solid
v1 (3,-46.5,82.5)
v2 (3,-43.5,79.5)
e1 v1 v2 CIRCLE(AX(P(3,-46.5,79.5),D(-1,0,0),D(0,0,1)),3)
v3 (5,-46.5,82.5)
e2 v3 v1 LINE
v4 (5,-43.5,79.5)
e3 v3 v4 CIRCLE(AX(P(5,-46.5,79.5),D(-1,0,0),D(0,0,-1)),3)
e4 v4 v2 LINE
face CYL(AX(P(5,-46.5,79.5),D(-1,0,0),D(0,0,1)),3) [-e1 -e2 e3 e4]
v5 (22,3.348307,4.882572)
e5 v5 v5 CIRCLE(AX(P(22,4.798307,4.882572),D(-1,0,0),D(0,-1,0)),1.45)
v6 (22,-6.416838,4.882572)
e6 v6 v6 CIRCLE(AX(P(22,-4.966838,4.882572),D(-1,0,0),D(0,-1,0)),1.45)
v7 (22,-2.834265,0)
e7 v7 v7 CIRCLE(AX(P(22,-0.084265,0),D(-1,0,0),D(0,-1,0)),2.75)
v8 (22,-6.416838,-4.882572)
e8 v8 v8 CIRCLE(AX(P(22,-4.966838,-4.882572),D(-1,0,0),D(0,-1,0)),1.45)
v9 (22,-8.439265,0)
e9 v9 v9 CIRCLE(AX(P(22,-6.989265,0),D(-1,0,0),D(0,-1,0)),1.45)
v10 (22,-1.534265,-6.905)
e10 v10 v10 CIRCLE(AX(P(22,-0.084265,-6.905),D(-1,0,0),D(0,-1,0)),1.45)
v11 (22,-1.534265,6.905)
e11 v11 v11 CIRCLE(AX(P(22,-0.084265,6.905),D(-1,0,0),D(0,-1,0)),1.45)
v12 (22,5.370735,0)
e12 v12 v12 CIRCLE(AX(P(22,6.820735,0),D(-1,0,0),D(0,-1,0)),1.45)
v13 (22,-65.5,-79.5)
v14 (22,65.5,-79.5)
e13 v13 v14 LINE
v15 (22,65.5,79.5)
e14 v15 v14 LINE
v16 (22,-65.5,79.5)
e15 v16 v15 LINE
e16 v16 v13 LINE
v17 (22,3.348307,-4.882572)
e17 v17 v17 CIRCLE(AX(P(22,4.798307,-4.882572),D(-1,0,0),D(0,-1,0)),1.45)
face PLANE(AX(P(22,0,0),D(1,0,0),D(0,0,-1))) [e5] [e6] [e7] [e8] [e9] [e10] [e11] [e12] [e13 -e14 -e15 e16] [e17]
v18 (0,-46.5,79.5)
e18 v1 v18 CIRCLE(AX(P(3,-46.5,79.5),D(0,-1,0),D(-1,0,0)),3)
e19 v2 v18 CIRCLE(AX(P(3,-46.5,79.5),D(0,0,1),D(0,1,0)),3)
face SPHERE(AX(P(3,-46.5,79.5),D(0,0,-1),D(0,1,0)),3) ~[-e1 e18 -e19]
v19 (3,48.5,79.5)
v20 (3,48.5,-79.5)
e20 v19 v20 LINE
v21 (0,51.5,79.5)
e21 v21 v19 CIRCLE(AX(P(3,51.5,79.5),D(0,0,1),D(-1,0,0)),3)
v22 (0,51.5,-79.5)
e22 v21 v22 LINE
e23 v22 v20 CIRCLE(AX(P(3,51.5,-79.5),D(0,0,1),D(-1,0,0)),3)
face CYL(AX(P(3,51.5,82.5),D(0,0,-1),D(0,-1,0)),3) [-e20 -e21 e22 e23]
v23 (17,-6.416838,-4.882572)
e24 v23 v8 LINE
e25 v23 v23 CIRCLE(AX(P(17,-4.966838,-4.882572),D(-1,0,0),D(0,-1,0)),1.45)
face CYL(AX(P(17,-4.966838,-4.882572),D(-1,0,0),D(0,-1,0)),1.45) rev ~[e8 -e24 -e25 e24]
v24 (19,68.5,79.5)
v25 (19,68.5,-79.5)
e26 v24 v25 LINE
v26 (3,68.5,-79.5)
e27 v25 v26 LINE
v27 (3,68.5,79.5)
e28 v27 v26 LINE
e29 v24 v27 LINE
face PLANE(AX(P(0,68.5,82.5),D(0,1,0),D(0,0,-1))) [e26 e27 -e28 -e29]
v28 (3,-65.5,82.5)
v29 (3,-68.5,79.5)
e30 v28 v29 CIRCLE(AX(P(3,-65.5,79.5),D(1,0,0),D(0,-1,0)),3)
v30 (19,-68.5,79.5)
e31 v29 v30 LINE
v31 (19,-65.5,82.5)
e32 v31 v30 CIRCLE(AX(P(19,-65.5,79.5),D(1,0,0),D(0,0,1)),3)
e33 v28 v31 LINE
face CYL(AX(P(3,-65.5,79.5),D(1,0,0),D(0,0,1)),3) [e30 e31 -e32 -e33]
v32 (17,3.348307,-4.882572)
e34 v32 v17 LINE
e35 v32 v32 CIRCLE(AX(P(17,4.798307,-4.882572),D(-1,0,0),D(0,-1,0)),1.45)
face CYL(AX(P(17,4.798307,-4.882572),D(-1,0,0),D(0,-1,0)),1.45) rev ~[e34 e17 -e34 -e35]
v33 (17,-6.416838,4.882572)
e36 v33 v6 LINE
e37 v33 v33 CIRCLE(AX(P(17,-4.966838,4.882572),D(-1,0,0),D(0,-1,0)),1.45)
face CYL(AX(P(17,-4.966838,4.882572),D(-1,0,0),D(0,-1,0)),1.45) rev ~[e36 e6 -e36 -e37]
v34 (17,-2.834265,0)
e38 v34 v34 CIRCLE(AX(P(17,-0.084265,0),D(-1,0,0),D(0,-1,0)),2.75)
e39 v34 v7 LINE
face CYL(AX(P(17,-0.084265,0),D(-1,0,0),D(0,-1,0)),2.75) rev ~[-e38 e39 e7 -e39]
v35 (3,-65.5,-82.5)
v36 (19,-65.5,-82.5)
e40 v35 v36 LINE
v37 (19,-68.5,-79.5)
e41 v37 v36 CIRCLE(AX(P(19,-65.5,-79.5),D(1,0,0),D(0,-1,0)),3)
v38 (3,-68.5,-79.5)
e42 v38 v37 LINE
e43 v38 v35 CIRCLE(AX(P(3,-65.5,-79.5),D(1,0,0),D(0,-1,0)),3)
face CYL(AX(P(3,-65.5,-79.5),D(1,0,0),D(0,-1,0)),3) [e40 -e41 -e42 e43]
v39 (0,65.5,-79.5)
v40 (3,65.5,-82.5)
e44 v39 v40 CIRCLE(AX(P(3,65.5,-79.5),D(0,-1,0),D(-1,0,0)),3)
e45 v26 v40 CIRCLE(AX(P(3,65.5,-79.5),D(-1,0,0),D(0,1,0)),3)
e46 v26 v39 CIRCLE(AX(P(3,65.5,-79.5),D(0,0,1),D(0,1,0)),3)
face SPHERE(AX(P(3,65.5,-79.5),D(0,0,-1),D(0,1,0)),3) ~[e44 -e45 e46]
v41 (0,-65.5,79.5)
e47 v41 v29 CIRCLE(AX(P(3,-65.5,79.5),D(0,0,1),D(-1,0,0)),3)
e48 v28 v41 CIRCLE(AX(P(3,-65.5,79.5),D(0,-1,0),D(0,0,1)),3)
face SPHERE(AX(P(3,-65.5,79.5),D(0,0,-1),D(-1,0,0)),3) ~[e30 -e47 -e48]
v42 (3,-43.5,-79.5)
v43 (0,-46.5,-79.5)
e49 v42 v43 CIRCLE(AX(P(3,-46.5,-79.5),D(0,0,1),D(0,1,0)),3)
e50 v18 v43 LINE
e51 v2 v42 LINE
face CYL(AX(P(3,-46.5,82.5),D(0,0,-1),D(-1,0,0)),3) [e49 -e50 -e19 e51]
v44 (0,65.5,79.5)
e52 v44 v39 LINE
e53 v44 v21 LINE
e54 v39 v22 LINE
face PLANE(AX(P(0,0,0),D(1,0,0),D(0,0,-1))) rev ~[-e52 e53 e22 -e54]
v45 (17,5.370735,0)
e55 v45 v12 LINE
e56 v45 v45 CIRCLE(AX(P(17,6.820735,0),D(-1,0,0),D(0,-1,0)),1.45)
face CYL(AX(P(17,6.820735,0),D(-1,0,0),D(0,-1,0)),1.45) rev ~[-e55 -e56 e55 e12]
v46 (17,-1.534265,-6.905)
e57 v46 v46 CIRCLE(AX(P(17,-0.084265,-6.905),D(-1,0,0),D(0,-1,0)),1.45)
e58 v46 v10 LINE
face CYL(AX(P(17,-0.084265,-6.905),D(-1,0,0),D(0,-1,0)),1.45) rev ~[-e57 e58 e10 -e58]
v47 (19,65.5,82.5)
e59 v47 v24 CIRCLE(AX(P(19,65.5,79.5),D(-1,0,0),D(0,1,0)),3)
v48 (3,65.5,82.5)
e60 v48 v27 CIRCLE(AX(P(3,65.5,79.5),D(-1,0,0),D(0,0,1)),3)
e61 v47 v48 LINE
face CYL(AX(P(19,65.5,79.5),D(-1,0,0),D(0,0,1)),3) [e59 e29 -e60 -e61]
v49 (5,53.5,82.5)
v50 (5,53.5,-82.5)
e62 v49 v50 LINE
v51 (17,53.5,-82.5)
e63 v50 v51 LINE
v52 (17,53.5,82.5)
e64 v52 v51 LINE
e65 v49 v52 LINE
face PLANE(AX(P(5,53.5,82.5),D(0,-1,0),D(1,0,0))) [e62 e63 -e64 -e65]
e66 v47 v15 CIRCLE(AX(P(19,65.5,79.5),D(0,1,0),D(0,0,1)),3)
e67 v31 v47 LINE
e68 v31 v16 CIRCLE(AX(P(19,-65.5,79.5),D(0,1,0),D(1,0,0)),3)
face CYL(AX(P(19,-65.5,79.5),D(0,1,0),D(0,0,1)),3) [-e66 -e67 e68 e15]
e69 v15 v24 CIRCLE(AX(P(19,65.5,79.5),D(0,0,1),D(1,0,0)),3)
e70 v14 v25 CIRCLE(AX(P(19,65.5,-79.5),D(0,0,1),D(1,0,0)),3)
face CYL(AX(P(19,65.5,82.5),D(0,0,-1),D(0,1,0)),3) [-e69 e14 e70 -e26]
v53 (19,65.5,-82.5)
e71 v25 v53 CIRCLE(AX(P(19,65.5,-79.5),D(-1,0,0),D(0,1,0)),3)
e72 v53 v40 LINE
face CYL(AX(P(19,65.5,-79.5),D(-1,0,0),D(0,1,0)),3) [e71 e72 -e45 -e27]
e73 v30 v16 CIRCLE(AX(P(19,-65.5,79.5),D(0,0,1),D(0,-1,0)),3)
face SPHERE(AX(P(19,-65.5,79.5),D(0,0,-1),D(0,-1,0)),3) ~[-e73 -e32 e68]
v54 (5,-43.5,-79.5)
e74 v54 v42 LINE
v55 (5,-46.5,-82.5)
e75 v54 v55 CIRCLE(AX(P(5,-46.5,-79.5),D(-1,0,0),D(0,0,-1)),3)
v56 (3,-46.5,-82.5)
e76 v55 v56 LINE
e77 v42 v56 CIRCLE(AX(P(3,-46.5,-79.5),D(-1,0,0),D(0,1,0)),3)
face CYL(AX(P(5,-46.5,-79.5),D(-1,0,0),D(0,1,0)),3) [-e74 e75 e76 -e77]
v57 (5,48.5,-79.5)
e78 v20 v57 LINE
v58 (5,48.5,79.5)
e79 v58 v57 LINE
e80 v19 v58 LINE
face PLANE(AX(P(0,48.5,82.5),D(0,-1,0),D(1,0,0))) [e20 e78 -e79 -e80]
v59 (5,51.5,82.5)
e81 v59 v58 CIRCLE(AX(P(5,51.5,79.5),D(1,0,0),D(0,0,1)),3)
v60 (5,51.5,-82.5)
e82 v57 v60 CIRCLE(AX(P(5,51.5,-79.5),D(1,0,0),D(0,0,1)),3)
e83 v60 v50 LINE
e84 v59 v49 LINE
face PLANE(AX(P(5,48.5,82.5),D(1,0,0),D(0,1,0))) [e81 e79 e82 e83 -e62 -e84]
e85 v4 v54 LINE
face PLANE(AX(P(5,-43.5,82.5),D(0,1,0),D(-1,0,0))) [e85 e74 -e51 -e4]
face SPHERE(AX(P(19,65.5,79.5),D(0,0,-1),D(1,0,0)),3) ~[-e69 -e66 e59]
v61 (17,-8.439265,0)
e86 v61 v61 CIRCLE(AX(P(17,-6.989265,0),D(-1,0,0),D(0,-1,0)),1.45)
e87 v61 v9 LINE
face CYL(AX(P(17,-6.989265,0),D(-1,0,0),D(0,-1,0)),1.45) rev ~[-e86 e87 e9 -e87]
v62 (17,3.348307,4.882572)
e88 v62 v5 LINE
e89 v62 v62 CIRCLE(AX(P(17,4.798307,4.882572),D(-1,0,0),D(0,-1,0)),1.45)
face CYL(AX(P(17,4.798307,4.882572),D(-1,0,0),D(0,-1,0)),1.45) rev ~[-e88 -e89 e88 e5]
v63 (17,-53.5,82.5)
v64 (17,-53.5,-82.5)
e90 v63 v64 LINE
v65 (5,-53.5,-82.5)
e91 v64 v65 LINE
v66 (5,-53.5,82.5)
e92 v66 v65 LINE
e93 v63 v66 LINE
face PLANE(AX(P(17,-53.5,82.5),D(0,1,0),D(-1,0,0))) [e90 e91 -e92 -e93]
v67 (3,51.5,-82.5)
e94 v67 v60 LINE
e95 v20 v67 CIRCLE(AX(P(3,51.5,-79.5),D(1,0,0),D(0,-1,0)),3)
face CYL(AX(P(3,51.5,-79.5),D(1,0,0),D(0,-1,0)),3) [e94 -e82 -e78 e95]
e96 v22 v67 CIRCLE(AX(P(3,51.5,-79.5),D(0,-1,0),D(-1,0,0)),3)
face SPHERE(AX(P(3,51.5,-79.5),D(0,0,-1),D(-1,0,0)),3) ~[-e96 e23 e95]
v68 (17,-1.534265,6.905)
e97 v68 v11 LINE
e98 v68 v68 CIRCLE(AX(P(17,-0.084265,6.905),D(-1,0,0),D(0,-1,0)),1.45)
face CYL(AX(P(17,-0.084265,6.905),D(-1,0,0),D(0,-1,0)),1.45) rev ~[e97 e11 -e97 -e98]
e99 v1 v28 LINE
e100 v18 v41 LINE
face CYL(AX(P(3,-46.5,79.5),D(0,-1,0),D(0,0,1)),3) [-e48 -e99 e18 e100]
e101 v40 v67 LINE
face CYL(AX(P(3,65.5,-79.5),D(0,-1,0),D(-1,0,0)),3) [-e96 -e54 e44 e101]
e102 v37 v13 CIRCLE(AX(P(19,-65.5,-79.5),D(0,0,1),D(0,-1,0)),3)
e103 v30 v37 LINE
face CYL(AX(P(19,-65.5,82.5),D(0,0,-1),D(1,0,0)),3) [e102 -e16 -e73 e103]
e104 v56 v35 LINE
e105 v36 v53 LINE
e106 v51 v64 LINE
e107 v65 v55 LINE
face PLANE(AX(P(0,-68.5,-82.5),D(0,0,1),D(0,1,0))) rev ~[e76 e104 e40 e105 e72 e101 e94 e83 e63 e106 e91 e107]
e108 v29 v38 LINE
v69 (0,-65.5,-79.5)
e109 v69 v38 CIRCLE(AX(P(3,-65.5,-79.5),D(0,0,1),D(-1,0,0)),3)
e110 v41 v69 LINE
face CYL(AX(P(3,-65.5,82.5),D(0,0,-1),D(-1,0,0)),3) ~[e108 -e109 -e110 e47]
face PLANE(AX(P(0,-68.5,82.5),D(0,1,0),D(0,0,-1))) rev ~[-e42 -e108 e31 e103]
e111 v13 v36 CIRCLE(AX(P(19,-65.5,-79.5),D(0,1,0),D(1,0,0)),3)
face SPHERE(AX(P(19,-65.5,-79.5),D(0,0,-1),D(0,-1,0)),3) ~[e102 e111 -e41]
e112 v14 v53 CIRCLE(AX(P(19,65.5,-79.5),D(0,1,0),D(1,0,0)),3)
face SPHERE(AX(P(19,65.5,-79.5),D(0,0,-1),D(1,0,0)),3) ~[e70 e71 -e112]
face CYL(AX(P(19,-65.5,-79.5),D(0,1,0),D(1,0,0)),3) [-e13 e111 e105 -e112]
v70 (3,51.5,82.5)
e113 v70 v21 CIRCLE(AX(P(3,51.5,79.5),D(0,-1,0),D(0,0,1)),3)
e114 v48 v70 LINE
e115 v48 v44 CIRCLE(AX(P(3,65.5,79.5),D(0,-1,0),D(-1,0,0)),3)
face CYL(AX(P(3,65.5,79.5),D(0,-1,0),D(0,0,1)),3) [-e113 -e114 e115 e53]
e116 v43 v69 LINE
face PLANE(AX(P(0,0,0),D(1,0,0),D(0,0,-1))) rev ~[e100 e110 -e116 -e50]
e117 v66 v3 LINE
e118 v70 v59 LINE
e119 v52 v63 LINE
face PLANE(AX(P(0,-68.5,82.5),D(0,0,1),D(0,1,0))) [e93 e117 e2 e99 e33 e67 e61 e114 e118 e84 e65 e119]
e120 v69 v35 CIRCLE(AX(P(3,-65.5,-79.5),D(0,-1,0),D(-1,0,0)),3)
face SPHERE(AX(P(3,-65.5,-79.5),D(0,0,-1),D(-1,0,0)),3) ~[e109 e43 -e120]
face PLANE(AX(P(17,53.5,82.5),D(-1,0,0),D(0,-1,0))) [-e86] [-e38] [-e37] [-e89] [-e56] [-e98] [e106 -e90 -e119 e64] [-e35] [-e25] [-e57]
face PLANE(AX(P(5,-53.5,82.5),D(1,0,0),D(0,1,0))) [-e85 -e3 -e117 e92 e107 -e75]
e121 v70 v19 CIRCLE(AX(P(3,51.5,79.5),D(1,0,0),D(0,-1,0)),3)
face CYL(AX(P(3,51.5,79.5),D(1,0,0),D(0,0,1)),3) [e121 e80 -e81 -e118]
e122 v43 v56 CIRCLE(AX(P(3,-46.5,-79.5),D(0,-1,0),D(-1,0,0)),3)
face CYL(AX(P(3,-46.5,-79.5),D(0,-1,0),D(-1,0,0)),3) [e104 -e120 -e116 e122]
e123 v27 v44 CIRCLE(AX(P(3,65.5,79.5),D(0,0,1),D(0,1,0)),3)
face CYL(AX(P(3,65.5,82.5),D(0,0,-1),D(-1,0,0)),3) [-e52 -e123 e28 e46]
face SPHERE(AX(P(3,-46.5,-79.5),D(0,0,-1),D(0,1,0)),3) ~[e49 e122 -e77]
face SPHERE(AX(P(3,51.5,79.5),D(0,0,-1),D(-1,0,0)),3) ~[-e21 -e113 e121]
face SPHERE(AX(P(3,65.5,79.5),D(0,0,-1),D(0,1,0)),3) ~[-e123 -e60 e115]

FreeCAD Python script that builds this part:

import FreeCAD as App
import Part
import Sketcher
Q = App.Units.Quantity


def edges_at(feature, points):
    """Names of the edges that pass closest to the given points."""
    edges = feature.Shape.Edges
    near = lambda p: min(range(len(edges)), key=lambda i: edges[i].distToShape(Part.Vertex(*p))[0])
    return sorted({f"Edge{near(p) + 1}" for p in points})


def add_polygon(sketch, points):
    """Adds a closed chain of lines whose ends are joined by coincident constraints."""
    first, n = sketch.GeometryCount, len(points)
    for a, b in zip(points, points[1:] + points[:1]):
        sketch.addGeometry(Part.LineSegment(App.Vector(*a, 0), App.Vector(*b, 0)), False)
    for i in range(n):
        sketch.addConstraint(Sketcher.Constraint("Coincident", first + i, 2, first + (i + 1) % n, 1))

doc = App.newDocument("Part")
params = doc.addObject("Spreadsheet::Sheet", "Params")
for row, (alias, value) in enumerate([
    ("sketch1_width", "137 mm"),
    ("sketch1_height", "165 mm"),
    ("pad1_length", "22 mm"),
    ("sketch2_width", "5 mm"),
    ("sketch2_width2", "12 mm"),
    ("sketch2_height", "92 mm"),
    ("sketch2_height2", "10 mm"),
    ("pocket1_length", "165 mm"),
    ("fillet_radius", "3 mm"),
    ("sketch3_diameter", "5.5 mm"),
    ("sketch3_diameter2", "2.9 mm"),
    ("pocket2_length", "5 mm"),
    ("fillet2_radius", "3 mm"),
    ("fillet3_radius", "3 mm"),
], start=1):
    params.set(f"A{row}", alias)
    params.set(f"B{row}", "=" + value)
    params.setAlias(f"B{row}", alias)

body = doc.addObject("PartDesign::Body", "Body")

sketch1 = body.newObject("Sketcher::SketchObject", "Sketch")
sketch1.AttachmentSupport = (doc.getObject("YZ_Plane"), [""])
sketch1.MapMode = "FlatFace"
add_polygon(sketch1, [(68, 82), (-68, 82), (-68, -82), (68, -82)])
sketch1.addConstraint(Sketcher.Constraint("Horizontal", 0))
sketch1.addConstraint(Sketcher.Constraint("Vertical", 1))
sketch1.addConstraint(Sketcher.Constraint("Horizontal", 2))
sketch1.addConstraint(Sketcher.Constraint("Vertical", 3))
sketch1.addConstraint(Sketcher.Constraint("Symmetric", 0, 2, 2, 2, -1, 1))
sketch1.addConstraint(Sketcher.Constraint("DistanceX", 0, 2, 0, 1, Q("137 mm")))
sketch1.addConstraint(Sketcher.Constraint("DistanceY", 1, 2, 1, 1, Q("165 mm")))
sketch1.setExpression("Constraints[9]", "Params.sketch1_width")
sketch1.setExpression("Constraints[10]", "Params.sketch1_height")
pad1 = body.newObject("PartDesign::Pad", "Pad")
pad1.Profile = sketch1
pad1.setExpression("Length", "Params.pad1_length")

sketch2 = body.newObject("Sketcher::SketchObject", "Sketch001")
sketch2.AttachmentSupport = (doc.getObject("XY_Plane"), [""])
sketch2.MapMode = "FlatFace"
sketch2.AttachmentOffset = App.Placement(App.Vector(0, 0, 82.5), App.Rotation())
add_polygon(sketch2, [(5, 48), (0, 48), (0, -44), (5, -44), (5, -54), (17, -54), (17, 54), (5, 54)])
sketch2.addConstraint(Sketcher.Constraint("Horizontal", 0))
sketch2.addConstraint(Sketcher.Constraint("Vertical", 1))
sketch2.addConstraint(Sketcher.Constraint("Horizontal", 2))
sketch2.addConstraint(Sketcher.Constraint("Vertical", 3))
sketch2.addConstraint(Sketcher.Constraint("Horizontal", 4))
sketch2.addConstraint(Sketcher.Constraint("Vertical", 5))
sketch2.addConstraint(Sketcher.Constraint("Horizontal", 6))
sketch2.addConstraint(Sketcher.Constraint("Vertical", 7))
sketch2.addConstraint(Sketcher.Constraint("Symmetric", 3, 2, 6, 2, -1))
sketch2.addConstraint(Sketcher.Constraint("PointOnObject", 0, 2, -2))
sketch2.addConstraint(Sketcher.Constraint("Equal", 2, 7))
sketch2.addConstraint(Sketcher.Constraint("DistanceX", 0, 2, 0, 1, Q("5 mm")))
sketch2.addConstraint(Sketcher.Constraint("DistanceX", 4, 1, 4, 2, Q("12 mm")))
sketch2.addConstraint(Sketcher.Constraint("DistanceY", 1, 2, 1, 1, Q("92 mm")))
sketch2.addConstraint(Sketcher.Constraint("DistanceY", 3, 2, 3, 1, Q("10 mm")))
sketch2.setExpression("Constraints[19]", "Params.sketch2_width")
sketch2.setExpression("Constraints[20]", "Params.sketch2_width2")
sketch2.setExpression("Constraints[21]", "Params.sketch2_height")
sketch2.setExpression("Constraints[22]", "Params.sketch2_height2")
pocket1 = body.newObject("PartDesign::Pocket", "Pocket")
pocket1.Profile = sketch2
pocket1.setExpression("Length", "Params.pocket1_length")
doc.recompute()

fillet = body.newObject("PartDesign::Fillet", "Fillet")
fillet.Base = (pocket1, edges_at(pocket1, [
    (22, -68.5, 0),
    (0, -43.5, 0),
    (0, 48.5, 0),
    (0, -68.5, 0),
    (0, 68.5, 0),
    (22, 68.5, 0),
]))
fillet.setExpression("Radius", "Params.fillet_radius")

sketch3 = body.newObject("Sketcher::SketchObject", "Sketch002")
sketch3.AttachmentSupport = (doc.getObject("YZ_Plane"), [""])
sketch3.MapMode = "FlatFace"
sketch3.AttachmentOffset = App.Placement(App.Vector(0, 0, 17), App.Rotation())
sketch3.addGeometry(Part.Circle(App.Vector(-0.1, 0, 0), App.Vector(0, 0, 1), 2.8), False)
sketch3.addGeometry(Part.Circle(App.Vector(-0.1, 6.9, 0), App.Vector(0, 0, 1), 1.4), False)
sketch3.addGeometry(Part.Circle(App.Vector(-5, 4.9, 0), App.Vector(0, 0, 1), 1.4), False)
sketch3.addGeometry(Part.Circle(App.Vector(-7, 0, 0), App.Vector(0, 0, 1), 1.4), False)
sketch3.addGeometry(Part.Circle(App.Vector(-5, -4.9, 0), App.Vector(0, 0, 1), 1.4), False)
sketch3.addGeometry(Part.Circle(App.Vector(-0.1, -6.9, 0), App.Vector(0, 0, 1), 1.4), False)
sketch3.addGeometry(Part.Circle(App.Vector(4.8, -4.9, 0), App.Vector(0, 0, 1), 1.4), False)
sketch3.addGeometry(Part.Circle(App.Vector(6.8, 0, 0), App.Vector(0, 0, 1), 1.4), False)
sketch3.addGeometry(Part.Circle(App.Vector(4.8, 4.9, 0), App.Vector(0, 0, 1), 1.4), False)
sketch3.addConstraint(Sketcher.Constraint("Equal", 1, 2))
sketch3.addConstraint(Sketcher.Constraint("Equal", 2, 3))
sketch3.addConstraint(Sketcher.Constraint("Equal", 3, 4))
sketch3.addConstraint(Sketcher.Constraint("Equal", 4, 5))
sketch3.addConstraint(Sketcher.Constraint("Equal", 5, 6))
sketch3.addConstraint(Sketcher.Constraint("Equal", 6, 7))
sketch3.addConstraint(Sketcher.Constraint("Equal", 7, 8))
sketch3.addConstraint(Sketcher.Constraint("Symmetric", 2, 3, 4, 3, -1))
sketch3.addConstraint(Sketcher.Constraint("Symmetric", 1, 3, 5, 3, -1))
sketch3.addConstraint(Sketcher.Constraint("Symmetric", 6, 3, 8, 3, -1))
sketch3.addConstraint(Sketcher.Constraint("PointOnObject", 0, 3, -1))
sketch3.addConstraint(Sketcher.Constraint("PointOnObject", 3, 3, -1))
sketch3.addConstraint(Sketcher.Constraint("PointOnObject", 7, 3, -1))
sketch3.addConstraint(Sketcher.Constraint("Horizontal", 4, 3, 6, 3))
sketch3.addConstraint(Sketcher.Constraint("Vertical", 0, 3, 1, 3))
sketch3.addConstraint(Sketcher.Constraint("Diameter", 0, Q("5.5 mm")))
sketch3.addConstraint(Sketcher.Constraint("Diameter", 1, Q("2.9 mm")))
sketch3.addConstraint(Sketcher.Constraint("DistanceY", 5, 3, 1, 3, Q("13.81 mm")))
sketch3.addConstraint(Sketcher.Constraint("DistanceX", 3, 3, 0, 3, Q("6.905 mm")))
sketch3.addConstraint(Sketcher.Constraint("DistanceX", 0, 3, 7, 3, Q("6.905 mm")))
sketch3.addConstraint(Sketcher.Constraint("DistanceX", 0, 3, -1, 1, Q("0.084265 mm")))
sketch3.addConstraint(Sketcher.Constraint("DistanceX", 2, 3, -1, 1, Q("4.966838 mm")))
sketch3.addConstraint(Sketcher.Constraint("DistanceY", -1, 1, 2, 3, Q("4.882572 mm")))
sketch3.addConstraint(Sketcher.Constraint("DistanceX", -1, 1, 6, 3, Q("4.798307 mm")))
sketch3.setExpression("Constraints[15]", "Params.sketch3_diameter")
sketch3.setExpression("Constraints[16]", "Params.sketch3_diameter2")
pocket2 = body.newObject("PartDesign::Pocket", "Pocket001")
pocket2.Profile = sketch3
pocket2.setExpression("Length", "Params.pocket2_length")
pocket2.Reversed = True
doc.recompute()

fillet2 = body.newObject("PartDesign::Fillet", "Fillet001")
fillet2.Base = (pocket2, edges_at(pocket2, [
    (4, 48.5, -82.5),
    (22, 0, -82.5),
    (0, 58.5, -82.5),
    (11, 68.5, -82.5),
    (11, -68.5, -82.5),
    (0, -56, -82.5),
    (4, -43.5, -82.5),
    (0.879, -44.379, -82.5),
    (0.879, 49.379, -82.5),
    (0.879, 67.621, -82.5),
    (21.121, 67.621, -82.5),
    (0.879, -67.621, -82.5),
    (21.121, -67.621, -82.5),
]))
fillet2.setExpression("Radius", "Params.fillet2_radius")
doc.recompute()

fillet3 = body.newObject("PartDesign::Fillet", "Fillet002")
fillet3.Base = (fillet2, edges_at(fillet2, [
    (4, 48.5, 82.5),
    (22, 0, 82.5),
    (11, -68.5, 82.5),
    (0, 58.5, 82.5),
    (4, -43.5, 82.5),
    (0, -56, 82.5),
    (11, 68.5, 82.5),
    (0.879, -44.379, 82.5),
    (0.879, 49.379, 82.5),
    (0.879, 67.621, 82.5),
    (21.121, 67.621, 82.5),
    (0.879, -67.621, 82.5),
    (21.121, -67.621, 82.5),
]))
fillet3.setExpression("Radius", "Params.fillet3_radius")

doc.recompute()
